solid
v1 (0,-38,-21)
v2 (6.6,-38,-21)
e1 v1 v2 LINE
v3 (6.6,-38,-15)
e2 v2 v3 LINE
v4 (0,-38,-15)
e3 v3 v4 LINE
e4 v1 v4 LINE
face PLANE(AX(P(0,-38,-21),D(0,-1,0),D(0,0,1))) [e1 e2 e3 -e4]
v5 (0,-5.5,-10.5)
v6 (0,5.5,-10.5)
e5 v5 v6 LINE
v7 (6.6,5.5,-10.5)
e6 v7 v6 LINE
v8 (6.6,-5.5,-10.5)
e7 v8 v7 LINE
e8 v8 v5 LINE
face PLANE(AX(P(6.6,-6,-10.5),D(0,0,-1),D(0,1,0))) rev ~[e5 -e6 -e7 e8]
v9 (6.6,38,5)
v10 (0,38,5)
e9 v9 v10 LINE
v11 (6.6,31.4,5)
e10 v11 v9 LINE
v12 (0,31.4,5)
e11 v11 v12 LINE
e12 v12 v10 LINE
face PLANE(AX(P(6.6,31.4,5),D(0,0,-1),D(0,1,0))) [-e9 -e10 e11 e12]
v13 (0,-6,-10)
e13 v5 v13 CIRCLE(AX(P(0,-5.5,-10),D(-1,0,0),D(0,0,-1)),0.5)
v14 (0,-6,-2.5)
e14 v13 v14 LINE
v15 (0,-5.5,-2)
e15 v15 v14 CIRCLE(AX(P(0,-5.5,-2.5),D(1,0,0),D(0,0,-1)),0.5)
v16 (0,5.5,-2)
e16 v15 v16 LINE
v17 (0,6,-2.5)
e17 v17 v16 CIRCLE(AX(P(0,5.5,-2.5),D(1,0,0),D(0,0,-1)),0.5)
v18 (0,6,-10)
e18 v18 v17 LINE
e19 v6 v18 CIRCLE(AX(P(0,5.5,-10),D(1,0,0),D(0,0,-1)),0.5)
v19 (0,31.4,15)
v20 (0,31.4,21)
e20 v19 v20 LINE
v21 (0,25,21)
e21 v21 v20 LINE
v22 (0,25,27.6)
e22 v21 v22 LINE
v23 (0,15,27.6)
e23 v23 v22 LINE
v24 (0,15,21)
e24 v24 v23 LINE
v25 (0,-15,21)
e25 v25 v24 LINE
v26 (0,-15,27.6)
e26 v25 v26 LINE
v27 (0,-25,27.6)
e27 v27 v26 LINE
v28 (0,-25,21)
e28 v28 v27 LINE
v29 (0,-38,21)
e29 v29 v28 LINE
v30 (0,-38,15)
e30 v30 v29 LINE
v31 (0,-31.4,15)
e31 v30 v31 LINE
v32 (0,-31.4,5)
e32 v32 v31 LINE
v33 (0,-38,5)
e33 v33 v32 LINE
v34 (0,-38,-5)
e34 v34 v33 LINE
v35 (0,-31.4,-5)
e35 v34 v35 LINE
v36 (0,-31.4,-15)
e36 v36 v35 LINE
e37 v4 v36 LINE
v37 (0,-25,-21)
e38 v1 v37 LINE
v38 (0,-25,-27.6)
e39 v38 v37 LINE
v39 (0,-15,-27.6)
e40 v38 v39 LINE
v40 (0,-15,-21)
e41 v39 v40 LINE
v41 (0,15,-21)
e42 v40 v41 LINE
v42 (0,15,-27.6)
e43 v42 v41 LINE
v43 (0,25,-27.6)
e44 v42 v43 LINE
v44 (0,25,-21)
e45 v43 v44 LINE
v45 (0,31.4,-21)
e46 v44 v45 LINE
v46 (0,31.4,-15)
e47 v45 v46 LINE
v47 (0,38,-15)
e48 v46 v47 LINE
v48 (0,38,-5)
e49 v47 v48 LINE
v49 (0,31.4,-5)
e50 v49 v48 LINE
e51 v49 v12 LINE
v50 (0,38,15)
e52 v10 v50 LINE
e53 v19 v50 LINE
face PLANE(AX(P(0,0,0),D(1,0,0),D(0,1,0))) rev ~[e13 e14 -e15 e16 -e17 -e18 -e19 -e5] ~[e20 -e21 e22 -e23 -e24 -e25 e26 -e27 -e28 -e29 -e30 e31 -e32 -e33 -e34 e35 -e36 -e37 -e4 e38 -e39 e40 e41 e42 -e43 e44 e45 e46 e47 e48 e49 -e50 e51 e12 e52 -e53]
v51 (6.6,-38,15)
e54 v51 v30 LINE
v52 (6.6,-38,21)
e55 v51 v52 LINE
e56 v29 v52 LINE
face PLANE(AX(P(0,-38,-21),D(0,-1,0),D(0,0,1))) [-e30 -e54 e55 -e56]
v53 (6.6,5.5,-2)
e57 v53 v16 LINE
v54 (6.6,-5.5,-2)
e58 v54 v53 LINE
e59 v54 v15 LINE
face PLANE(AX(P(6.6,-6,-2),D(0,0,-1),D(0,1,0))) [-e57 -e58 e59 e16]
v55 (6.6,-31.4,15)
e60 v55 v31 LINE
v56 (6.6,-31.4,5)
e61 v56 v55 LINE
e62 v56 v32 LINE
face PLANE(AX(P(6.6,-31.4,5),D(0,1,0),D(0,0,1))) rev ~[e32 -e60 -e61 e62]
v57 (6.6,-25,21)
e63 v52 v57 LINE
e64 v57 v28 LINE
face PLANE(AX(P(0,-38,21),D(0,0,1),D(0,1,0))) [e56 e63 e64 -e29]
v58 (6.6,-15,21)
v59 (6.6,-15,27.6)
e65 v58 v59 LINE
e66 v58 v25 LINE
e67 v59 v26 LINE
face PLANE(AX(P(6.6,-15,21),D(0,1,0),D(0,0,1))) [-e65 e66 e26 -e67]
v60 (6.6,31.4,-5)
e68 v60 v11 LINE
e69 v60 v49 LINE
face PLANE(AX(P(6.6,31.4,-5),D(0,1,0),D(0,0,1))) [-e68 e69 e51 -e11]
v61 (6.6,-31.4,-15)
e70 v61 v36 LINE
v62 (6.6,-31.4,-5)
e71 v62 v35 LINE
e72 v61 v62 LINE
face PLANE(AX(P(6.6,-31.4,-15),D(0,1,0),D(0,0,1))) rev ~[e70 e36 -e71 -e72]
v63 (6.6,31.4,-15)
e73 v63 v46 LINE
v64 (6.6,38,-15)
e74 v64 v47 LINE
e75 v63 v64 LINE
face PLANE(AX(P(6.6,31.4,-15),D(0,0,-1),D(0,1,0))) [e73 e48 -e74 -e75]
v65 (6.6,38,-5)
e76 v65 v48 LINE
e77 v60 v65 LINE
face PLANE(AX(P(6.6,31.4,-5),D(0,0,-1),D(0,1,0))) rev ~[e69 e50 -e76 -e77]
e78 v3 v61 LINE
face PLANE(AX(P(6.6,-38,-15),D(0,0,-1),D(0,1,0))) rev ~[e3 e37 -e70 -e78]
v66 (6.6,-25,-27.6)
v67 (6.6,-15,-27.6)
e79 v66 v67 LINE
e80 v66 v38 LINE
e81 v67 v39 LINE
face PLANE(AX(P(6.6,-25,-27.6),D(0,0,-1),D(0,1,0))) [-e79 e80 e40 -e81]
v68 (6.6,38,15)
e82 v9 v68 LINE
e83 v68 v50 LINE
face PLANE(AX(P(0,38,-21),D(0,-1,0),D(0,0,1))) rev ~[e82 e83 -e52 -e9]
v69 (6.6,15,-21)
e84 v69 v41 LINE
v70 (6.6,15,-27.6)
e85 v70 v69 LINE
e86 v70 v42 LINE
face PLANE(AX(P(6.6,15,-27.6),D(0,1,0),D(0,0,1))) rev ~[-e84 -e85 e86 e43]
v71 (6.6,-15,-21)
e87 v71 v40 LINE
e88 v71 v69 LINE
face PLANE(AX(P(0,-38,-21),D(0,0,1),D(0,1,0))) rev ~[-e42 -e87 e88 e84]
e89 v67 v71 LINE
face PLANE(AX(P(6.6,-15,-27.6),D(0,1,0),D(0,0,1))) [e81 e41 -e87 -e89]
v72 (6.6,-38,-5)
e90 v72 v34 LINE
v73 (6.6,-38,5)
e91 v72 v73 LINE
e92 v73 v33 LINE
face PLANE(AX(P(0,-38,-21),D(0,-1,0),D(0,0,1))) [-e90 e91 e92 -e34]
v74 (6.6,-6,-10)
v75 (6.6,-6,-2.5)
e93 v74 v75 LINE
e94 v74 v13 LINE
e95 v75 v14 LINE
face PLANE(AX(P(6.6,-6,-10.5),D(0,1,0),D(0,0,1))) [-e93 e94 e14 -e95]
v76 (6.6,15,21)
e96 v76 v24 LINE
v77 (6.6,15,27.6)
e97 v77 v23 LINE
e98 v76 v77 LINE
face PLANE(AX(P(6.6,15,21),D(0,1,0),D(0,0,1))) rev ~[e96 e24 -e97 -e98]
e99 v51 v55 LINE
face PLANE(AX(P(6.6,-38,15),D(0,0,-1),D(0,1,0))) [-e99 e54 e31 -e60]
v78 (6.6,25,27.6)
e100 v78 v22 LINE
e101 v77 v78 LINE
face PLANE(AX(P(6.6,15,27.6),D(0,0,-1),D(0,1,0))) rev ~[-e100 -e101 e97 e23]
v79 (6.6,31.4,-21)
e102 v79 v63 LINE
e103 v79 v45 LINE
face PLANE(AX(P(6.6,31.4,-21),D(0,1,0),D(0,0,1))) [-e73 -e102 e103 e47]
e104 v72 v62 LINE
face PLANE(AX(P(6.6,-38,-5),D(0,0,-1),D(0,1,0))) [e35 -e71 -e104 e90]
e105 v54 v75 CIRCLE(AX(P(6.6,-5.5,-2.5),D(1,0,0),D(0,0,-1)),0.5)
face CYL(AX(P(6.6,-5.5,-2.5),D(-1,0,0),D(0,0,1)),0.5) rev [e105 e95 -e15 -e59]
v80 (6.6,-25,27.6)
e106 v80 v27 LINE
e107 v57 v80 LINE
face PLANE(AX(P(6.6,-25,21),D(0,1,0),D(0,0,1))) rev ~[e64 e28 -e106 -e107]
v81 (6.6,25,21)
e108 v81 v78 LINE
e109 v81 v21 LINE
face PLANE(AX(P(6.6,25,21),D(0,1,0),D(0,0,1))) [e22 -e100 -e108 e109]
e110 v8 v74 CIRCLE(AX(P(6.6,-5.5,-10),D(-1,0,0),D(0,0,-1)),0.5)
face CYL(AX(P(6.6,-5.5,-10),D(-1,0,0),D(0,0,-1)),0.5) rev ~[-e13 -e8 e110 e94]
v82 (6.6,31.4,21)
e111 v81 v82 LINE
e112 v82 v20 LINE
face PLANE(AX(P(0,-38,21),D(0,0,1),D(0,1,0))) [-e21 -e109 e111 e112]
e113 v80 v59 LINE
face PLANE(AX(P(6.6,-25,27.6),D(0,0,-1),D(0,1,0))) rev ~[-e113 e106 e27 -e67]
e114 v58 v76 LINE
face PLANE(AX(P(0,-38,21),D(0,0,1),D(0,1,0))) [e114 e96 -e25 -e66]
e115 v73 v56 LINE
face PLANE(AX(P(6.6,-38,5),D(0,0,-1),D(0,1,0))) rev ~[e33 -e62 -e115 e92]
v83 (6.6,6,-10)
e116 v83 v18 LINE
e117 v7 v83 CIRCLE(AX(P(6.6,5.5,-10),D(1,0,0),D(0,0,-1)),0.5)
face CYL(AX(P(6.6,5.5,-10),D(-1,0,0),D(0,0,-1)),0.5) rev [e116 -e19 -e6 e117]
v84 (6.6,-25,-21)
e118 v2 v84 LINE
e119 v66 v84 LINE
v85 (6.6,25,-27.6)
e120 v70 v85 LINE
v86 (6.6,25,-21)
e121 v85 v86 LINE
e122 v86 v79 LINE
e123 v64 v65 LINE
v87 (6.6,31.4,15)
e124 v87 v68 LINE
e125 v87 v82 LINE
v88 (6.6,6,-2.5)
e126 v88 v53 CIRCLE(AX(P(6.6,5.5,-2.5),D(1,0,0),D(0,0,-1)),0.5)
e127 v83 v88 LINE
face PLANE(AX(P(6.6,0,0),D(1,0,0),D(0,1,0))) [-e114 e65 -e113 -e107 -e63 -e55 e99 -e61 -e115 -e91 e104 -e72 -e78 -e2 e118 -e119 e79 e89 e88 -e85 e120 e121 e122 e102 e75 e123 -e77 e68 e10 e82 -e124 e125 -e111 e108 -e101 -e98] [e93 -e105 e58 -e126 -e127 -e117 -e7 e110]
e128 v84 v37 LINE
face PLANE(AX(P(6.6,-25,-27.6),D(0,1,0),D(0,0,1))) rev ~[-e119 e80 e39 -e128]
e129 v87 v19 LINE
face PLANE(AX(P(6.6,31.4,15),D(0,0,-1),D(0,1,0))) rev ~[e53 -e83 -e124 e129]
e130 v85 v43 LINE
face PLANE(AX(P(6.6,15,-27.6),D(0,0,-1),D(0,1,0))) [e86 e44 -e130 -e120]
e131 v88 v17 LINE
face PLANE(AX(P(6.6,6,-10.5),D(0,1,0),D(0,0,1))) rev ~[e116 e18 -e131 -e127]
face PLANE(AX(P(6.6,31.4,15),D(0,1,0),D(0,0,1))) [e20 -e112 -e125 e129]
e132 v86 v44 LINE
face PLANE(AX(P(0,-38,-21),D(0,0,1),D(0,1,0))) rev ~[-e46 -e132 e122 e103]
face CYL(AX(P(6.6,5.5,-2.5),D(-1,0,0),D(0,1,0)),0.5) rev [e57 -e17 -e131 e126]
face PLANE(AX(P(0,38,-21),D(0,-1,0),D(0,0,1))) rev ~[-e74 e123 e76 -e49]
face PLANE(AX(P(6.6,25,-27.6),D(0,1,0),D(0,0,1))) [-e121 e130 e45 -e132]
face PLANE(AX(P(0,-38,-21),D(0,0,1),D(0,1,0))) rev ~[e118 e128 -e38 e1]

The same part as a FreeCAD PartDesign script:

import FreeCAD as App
import Part
import Sketcher
from FreeCAD import Vector


def edges_at(feature, points):
    """Names of the edges that pass closest to the given points."""
    edges = feature.Shape.Edges
    near = lambda p: min(range(len(edges)), key=lambda i: edges[i].distToShape(Part.Vertex(*p))[0])
    return sorted({f"Edge{near(p) + 1}" for p in points})


def add_polygon(sketch, points):
    """Adds a closed chain of lines whose ends are joined by coincident constraints."""
    first, n = sketch.GeometryCount, len(points)
    for a, b in zip(points, points[1:] + points[:1]):
        sketch.addGeometry(Part.LineSegment(App.Vector(*a, 0), App.Vector(*b, 0)), False)
    for i in range(n):
        sketch.addConstraint(Sketcher.Constraint("Coincident", first + i, 2, first + (i + 1) % n, 1))

doc = App.newDocument("Part")
body = doc.addObject("PartDesign::Body", "Body")

# Sketch on YZ plane
sketch1 = body.newObject("Sketcher::SketchObject", "Sketch")
sketch1.AttachmentSupport = (doc.getObject("YZ_Plane"), [""])
sketch1.MapMode = "FlatFace"
add_polygon(sketch1, [(-38, 21), (-38, -21), (38, -21), (38, 21)])  # lines 0-3
sketch1.addConstraint([
    Sketcher.Constraint("Vertical", 0),
    Sketcher.Constraint("Horizontal", 1),
    Sketcher.Constraint("Vertical", 2),
    Sketcher.Constraint("Horizontal", 3),
    Sketcher.Constraint("Symmetric", 0, 2, 2, 2, -1, 1),
    Sketcher.Constraint("DistanceX", 1, 1, 1, 2, 76.0),
    Sketcher.Constraint("DistanceY", 0, 2, 0, 1, 42.0),
])
pad1 = body.newObject("PartDesign::Pad", "Pad")
pad1.Profile = sketch1
pad1.Length = 6.6

# Sketch on YZ plane
sketch2 = body.newObject("Sketcher::SketchObject", "Sketch001")
sketch2.AttachmentSupport = (doc.getObject("YZ_Plane"), [""])
sketch2.MapMode = "FlatFace"
sketch2.AttachmentOffset = App.Placement(Vector(0, 0, 6.6), App.Rotation())
add_polygon(sketch2, [(-25, 28), (-25, 21), (-15, 21), (-15, 28)])  # lines 0-3
add_polygon(sketch2, [(15, 28), (15, 21), (25, 21), (25, 28)])  # lines 4-7
add_polygon(sketch2, [(15, -21), (15, -28), (25, -28), (25, -21)])  # lines 8-11
add_polygon(sketch2, [(-25, -21), (-25, -28), (-15, -28), (-15, -21)])  # lines 12-15
sketch2.addConstraint([
    Sketcher.Constraint("Vertical", 0),
    Sketcher.Constraint("Horizontal", 1),
    Sketcher.Constraint("Vertical", 2),
    Sketcher.Constraint("Horizontal", 3),
    Sketcher.Constraint("Vertical", 4),
    Sketcher.Constraint("Horizontal", 5),
    Sketcher.Constraint("Vertical", 6),
    Sketcher.Constraint("Horizontal", 7),
    Sketcher.Constraint("Vertical", 8),
    Sketcher.Constraint("Horizontal", 9),
    Sketcher.Constraint("Vertical", 10),
    Sketcher.Constraint("Horizontal", 11),
    Sketcher.Constraint("Vertical", 12),
    Sketcher.Constraint("Horizontal", 13),
    Sketcher.Constraint("Vertical", 14),
    Sketcher.Constraint("Horizontal", 15),
    Sketcher.Constraint("Symmetric", 2, 2, 8, 2, -1, 1),
    Sketcher.Constraint("Symmetric", 0, 2, 10, 2, -1, 1),
    Sketcher.Constraint("Symmetric", 6, 2, 12, 2, -1, 1),
    Sketcher.Constraint("Symmetric", 4, 2, 14, 2, -1, 1),
    Sketcher.Constraint("Symmetric", 1, 2, 4, 2, -2),
    Sketcher.Constraint("Symmetric", 3, 2, 6, 2, -2),
    Sketcher.Constraint("DistanceX", 1, 1, 1, 2, 10.0),
    Sketcher.Constraint("DistanceY", 0, 2, 0, 1, 6.6),
    Sketcher.Constraint("DistanceX", 0, 2, -1, 1, 25.0),
    Sketcher.Constraint("DistanceY", -1, 1, 0, 2, 21.0),
])
pad2 = body.newObject("PartDesign::Pad", "Pad001")
pad2.Profile = sketch2
pad2.Length = 6.6
pad2.Reversed = True

# Sketch on YZ plane
sketch3 = body.newObject("Sketcher::SketchObject", "Sketch002")
sketch3.AttachmentSupport = (doc.getObject("YZ_Plane"), [""])
sketch3.MapMode = "FlatFace"
sketch3.AttachmentOffset = App.Placement(Vector(0, 0, 6.6), App.Rotation())
add_polygon(sketch3, [(31, 21), (31, 15), (38, 15), (38, 21)])  # lines 0-3
add_polygon(sketch3, [(31, -15), (31, -21), (38, -21), (38, -15)])  # lines 4-7
add_polygon(sketch3, [(31, 5), (31, -5), (38, -5), (38, 5)])  # lines 8-11
add_polygon(sketch3, [(-38, 15), (-38, 5), (-31, 5), (-31, 15)])  # lines 12-15
add_polygon(sketch3, [(-38, -5), (-38, -15), (-31, -15), (-31, -5)])  # lines 16-19
sketch3.addConstraint([
    Sketcher.Constraint("Vertical", 0),
    Sketcher.Constraint("Horizontal", 1),
    Sketcher.Constraint("Vertical", 2),
    Sketcher.Constraint("Horizontal", 3),
    Sketcher.Constraint("Vertical", 4),
    Sketcher.Constraint("Horizontal", 5),
    Sketcher.Constraint("Vertical", 6),
    Sketcher.Constraint("Horizontal", 7),
    Sketcher.Constraint("Vertical", 8),
    Sketcher.Constraint("Horizontal", 9),
    Sketcher.Constraint("Vertical", 10),
    Sketcher.Constraint("Horizontal", 11),
    Sketcher.Constraint("Vertical", 12),
    Sketcher.Constraint("Horizontal", 13),
    Sketcher.Constraint("Vertical", 14),
    Sketcher.Constraint("Horizontal", 15),
    Sketcher.Constraint("Vertical", 16),
    Sketcher.Constraint("Horizontal", 17),
    Sketcher.Constraint("Vertical", 18),
    Sketcher.Constraint("Horizontal", 19),
    Sketcher.Constraint("Symmetric", 9, 2, 12, 2, -1, 1),
    Sketcher.Constraint("Symmetric", 7, 2, 14, 2, -1, 1),
    Sketcher.Constraint("Symmetric", 1, 2, 16, 2, -1, 1),
    Sketcher.Constraint("Symmetric", 11, 2, 18, 2, -1, 1),
    Sketcher.Constraint("Symmetric", 11, 2, 13, 2, -2),
    Sketcher.Constraint("Symmetric", 0, 2, 14, 2, -2),
    Sketcher.Constraint("Symmetric", 2, 2, 5, 2, -1),
    Sketcher.Constraint("Vertical", 6, 2, 9, 2),
    Sketcher.Constraint("Equal", 10, 12),
    Sketcher.Constraint("DistanceY", 0, 2, 0, 1, 6.0),
    Sketcher.Constraint("DistanceY", 8, 2, 8, 1, 10.0),
    Sketcher.Constraint("DistanceX", 1, 1, 1, 2, 6.6),
    Sketcher.Constraint("DistanceX", -1, 1, 1, 2, 38.0),
])
pocket1 = body.newObject("PartDesign::Pocket", "Pocket")
pocket1.Profile = sketch3
pocket1.Type = "ThroughAll"

# Sketch on YZ plane
sketch4 = body.newObject("Sketcher::SketchObject", "Sketch003")
sketch4.AttachmentSupport = (doc.getObject("YZ_Plane"), [""])
sketch4.MapMode = "FlatFace"
sketch4.AttachmentOffset = App.Placement(Vector(0, 0, 6.6), App.Rotation())
add_polygon(sketch4, [(-6, -2), (-6, -10), (6, -10), (6, -2)])  # lines 0-3
sketch4.addConstraint([
    Sketcher.Constraint("Vertical", 0),
    Sketcher.Constraint("Horizontal", 1),
    Sketcher.Constraint("Vertical", 2),
    Sketcher.Constraint("Horizontal", 3),
    Sketcher.Constraint("DistanceX", 1, 1, 1, 2, 12.0),
    Sketcher.Constraint("DistanceY", 0, 2, 0, 1, 8.5),
    Sketcher.Constraint("DistanceX", 0, 2, -1, 1, 6.0),
    Sketcher.Constraint("DistanceY", 2, 2, -1, 1, 2.0),
])
pocket2 = body.newObject("PartDesign::Pocket", "Pocket001")
pocket2.Profile = sketch4
pocket2.Type = "ThroughAll"
doc.recompute()

fillet = body.newObject("PartDesign::Fillet", "Fillet")
fillet.Base = (pocket2, edges_at(pocket2, [
    (3.3, -6, -2),
    (3.3, 6, -2),
    (3.3, 6, -10.5),
    (3.3, -6, -10.5),
]))
fillet.Radius = 0.5

doc.recompute()
